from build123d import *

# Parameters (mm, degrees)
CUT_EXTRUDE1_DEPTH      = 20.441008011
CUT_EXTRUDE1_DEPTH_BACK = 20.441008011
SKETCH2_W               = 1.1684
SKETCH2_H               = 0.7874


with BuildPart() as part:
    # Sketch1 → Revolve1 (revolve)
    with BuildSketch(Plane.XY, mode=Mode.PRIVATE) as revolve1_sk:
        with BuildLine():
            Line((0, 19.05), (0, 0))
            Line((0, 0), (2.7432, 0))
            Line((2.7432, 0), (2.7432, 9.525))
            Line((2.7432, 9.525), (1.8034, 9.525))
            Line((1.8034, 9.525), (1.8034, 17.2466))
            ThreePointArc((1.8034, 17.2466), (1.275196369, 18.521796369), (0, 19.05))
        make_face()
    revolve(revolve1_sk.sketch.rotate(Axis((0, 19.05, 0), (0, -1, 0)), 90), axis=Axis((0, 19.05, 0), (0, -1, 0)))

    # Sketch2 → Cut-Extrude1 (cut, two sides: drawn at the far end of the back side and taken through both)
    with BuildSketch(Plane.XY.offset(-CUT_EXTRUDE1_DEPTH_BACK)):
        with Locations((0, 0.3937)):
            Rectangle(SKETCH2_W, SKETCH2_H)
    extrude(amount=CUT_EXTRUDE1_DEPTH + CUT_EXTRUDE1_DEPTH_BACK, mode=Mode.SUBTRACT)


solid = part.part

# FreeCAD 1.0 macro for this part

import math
import FreeCAD as App
import Part
import Sketcher
from FreeCAD import Vector
Q = App.Units.Quantity

doc = App.newDocument("Part")
body = doc.addObject("PartDesign::Body", "Body")

# Sketch on XY plane
sketch1 = body.newObject("Sketcher::SketchObject", "Sketch")
sketch1.AttachmentSupport = (doc.getObject("XY_Plane"), [""])
sketch1.MapMode = "FlatFace"
sketch1.addGeometry(Part.LineSegment(Vector(0, 19.1, 0), Vector(0, 0, 0)), False)
sketch1.addGeometry(Part.LineSegment(Vector(0, 0, 0), Vector(2.7, 0, 0)), False)
sketch1.addGeometry(Part.LineSegment(Vector(2.7, 0, 0), Vector(2.7, 9.5, 0)), False)
sketch1.addGeometry(Part.LineSegment(Vector(2.7, 9.5, 0), Vector(1.8, 9.5, 0)), False)
sketch1.addGeometry(Part.LineSegment(Vector(1.8, 9.5, 0), Vector(1.8, 17.2, 0)), False)
sketch1.addGeometry(Part.ArcOfCircle(Part.Circle(Vector(0, 17.2, 0), Vector(0, 0, 1), 1.8), math.radians(0), math.radians(90)), False)
sketch1.addConstraint(Sketcher.Constraint("Coincident", 0, 2, 1, 1))
sketch1.addConstraint(Sketcher.Constraint("Coincident", 1, 2, 2, 1))
sketch1.addConstraint(Sketcher.Constraint("Coincident", 2, 2, 3, 1))
sketch1.addConstraint(Sketcher.Constraint("Coincident", 3, 2, 4, 1))
sketch1.addConstraint(Sketcher.Constraint("Tangent", 4, 2, 5, 1))
sketch1.addConstraint(Sketcher.Constraint("Coincident", 5, 2, 0, 1))
sketch1.addConstraint(Sketcher.Constraint("Vertical", 0))
sketch1.addConstraint(Sketcher.Constraint("Horizontal", 1))
sketch1.addConstraint(Sketcher.Constraint("Vertical", 2))
sketch1.addConstraint(Sketcher.Constraint("Horizontal", 3))
sketch1.addConstraint(Sketcher.Constraint("Vertical", 4))
sketch1.addConstraint(Sketcher.Constraint("Coincident", 0, 2, -1, 1))
sketch1.addConstraint(Sketcher.Constraint("PointOnObject", 5, 3, -2))
sketch1.addConstraint(Sketcher.Constraint("Radius", 5, Q("0.071 in")))
sketch1.addConstraint(Sketcher.Constraint("DistanceY", 0, 2, 0, 1, Q("0.75 in")))
sketch1.addConstraint(Sketcher.Constraint("DistanceX", 1, 1, 1, 2, Q("0.108 in")))
sketch1.addConstraint(Sketcher.Constraint("DistanceY", 2, 1, 2, 2, Q("0.375 in")))
revolution = body.newObject("PartDesign::Revolution", "Revolution")
revolution.Profile = sketch1
revolution.ReferenceAxis = (sketch1, ["V_Axis"])
revolution.Angle = 360

# Sketch on XY plane
sketch2 = body.newObject("Sketcher::SketchObject", "Sketch001")
sketch2.AttachmentSupport = (doc.getObject("XY_Plane"), [""])
sketch2.MapMode = "FlatFace"
sketch2.addGeometry(Part.LineSegment(Vector(-0.6, 0.8, 0), Vector(-0.6, 0, 0)), False)
sketch2.addGeometry(Part.LineSegment(Vector(-0.6, 0, 0), Vector(0.6, 0, 0)), False)
sketch2.addGeometry(Part.LineSegment(Vector(0.6, 0, 0), Vector(0.6, 0.8, 0)), False)
sketch2.addGeometry(Part.LineSegment(Vector(0.6, 0.8, 0), Vector(-0.6, 0.8, 0)), False)
sketch2.addConstraint(Sketcher.Constraint("Coincident", 0, 2, 1, 1))
sketch2.addConstraint(Sketcher.Constraint("Coincident", 1, 2, 2, 1))
sketch2.addConstraint(Sketcher.Constraint("Coincident", 2, 2, 3, 1))
sketch2.addConstraint(Sketcher.Constraint("Coincident", 3, 2, 0, 1))
sketch2.addConstraint(Sketcher.Constraint("Vertical", 0))
sketch2.addConstraint(Sketcher.Constraint("Horizontal", 1))
sketch2.addConstraint(Sketcher.Constraint("Vertical", 2))
sketch2.addConstraint(Sketcher.Constraint("Horizontal", 3))
sketch2.addConstraint(Sketcher.Constraint("Symmetric", 0, 2, 1, 2, -1, 1))
sketch2.addConstraint(Sketcher.Constraint("DistanceX", 1, 1, 1, 2, Q("0.046 in")))
sketch2.addConstraint(Sketcher.Constraint("DistanceY", 0, 2, 0, 1, Q("0.031 in")))
pocket1 = body.newObject("PartDesign::Pocket", "Pocket")
pocket1.Profile = sketch2
pocket1.Type = "ThroughAll"
pocket1.Midplane = True

doc.recompute()
